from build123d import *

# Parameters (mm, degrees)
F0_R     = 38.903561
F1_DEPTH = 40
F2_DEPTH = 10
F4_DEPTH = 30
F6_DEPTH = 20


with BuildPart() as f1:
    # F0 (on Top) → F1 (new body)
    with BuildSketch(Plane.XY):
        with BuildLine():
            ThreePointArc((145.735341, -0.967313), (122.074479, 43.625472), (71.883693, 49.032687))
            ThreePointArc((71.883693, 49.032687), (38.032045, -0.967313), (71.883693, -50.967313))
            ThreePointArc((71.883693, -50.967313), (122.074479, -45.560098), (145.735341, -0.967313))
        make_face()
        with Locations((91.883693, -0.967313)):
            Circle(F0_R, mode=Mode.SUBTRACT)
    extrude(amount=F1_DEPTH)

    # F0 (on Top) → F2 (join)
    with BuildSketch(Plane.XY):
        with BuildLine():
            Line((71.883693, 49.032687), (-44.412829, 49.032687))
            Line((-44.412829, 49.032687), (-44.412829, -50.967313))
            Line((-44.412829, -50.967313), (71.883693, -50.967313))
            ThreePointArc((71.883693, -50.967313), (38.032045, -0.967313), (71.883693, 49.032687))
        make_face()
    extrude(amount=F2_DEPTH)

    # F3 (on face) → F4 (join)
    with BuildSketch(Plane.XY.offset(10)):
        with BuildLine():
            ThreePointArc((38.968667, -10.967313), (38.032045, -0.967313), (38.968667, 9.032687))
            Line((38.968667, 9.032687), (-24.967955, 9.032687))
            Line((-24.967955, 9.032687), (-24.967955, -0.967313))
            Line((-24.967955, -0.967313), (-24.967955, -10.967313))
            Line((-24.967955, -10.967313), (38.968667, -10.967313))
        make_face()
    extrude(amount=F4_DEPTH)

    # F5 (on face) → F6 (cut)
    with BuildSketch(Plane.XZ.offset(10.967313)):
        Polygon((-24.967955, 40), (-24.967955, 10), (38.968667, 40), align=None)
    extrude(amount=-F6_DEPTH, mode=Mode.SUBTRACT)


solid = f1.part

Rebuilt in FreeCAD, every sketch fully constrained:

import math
import FreeCAD as App
import Part
import Sketcher
from FreeCAD import Vector
Q = App.Units.Quantity


def add_polygon(sketch, points):
    """Adds a closed chain of lines whose ends are joined by coincident constraints."""
    first, n = sketch.GeometryCount, len(points)
    for a, b in zip(points, points[1:] + points[:1]):
        sketch.addGeometry(Part.LineSegment(App.Vector(*a, 0), App.Vector(*b, 0)), False)
    for i in range(n):
        sketch.addConstraint(Sketcher.Constraint("Coincident", first + i, 2, first + (i + 1) % n, 1))

doc = App.newDocument("Part")
params = doc.addObject("Spreadsheet::Sheet", "Params")
for row, (alias, value) in enumerate([
    ("sketch1_width", "20 mm"),
    ("sketch1_height", "49.999999 mm"),
    ("pad1_length", "40 mm"),
    ("sketch2_height", "100 mm"),
    ("pad2_length", "10 mm"),
    ("sketch3_height", "20 mm"),
    ("pad3_length", "30 mm"),
    ("sketch4_height", "30 mm"),
    ("pocket1_length", "20 mm"),
], start=1):
    params.set(f"A{row}", alias)
    params.set(f"B{row}", "=" + value)
    params.setAlias(f"B{row}", alias)

body = doc.addObject("PartDesign::Body", "Body")

# Sketch on XY plane
sketch1 = body.newObject("Sketcher::SketchObject", "Sketch")
sketch1.AttachmentSupport = (doc.getObject("XY_Plane"), [""])
sketch1.MapMode = "FlatFace"
sketch1.addGeometry(Part.ArcOfCircle(Part.Circle(Vector(92, -1, 0), Vector(0, 0, 1), 54), math.radians(0), math.radians(112)), False)
sketch1.addGeometry(Part.ArcOfCircle(Part.Circle(Vector(92, -1, 0), Vector(0, 0, 1), 54), math.radians(112), math.radians(248)), False)
sketch1.addGeometry(Part.ArcOfCircle(Part.Circle(Vector(92, -1, 0), Vector(0, 0, 1), 54), math.radians(-112), math.radians(0)), False)
sketch1.addGeometry(Part.Circle(Vector(92, -1, 0), Vector(0, 0, 1), 39), False)
sketch1.addConstraint(Sketcher.Constraint("Tangent", 0, 2, 1, 1))
sketch1.addConstraint(Sketcher.Constraint("Tangent", 1, 2, 2, 1))
sketch1.addConstraint(Sketcher.Constraint("Tangent", 2, 2, 0, 1))
sketch1.addConstraint(Sketcher.Constraint("Coincident", 3, 3, 0, 3))
sketch1.addConstraint(Sketcher.Constraint("Horizontal", 3, 3, 2, 2))
sketch1.addConstraint(Sketcher.Constraint("Vertical", 0, 2, 1, 2))
sketch1.addConstraint(Sketcher.Constraint("DistanceX", 0, 2, 0, 3, Q("20 mm")))
sketch1.addConstraint(Sketcher.Constraint("DistanceY", 0, 3, 0, 2, Q("49.999999 mm")))
sketch1.addConstraint(Sketcher.Constraint("Diameter", 3, Q("77.807122 mm")))
sketch1.addConstraint(Sketcher.Constraint("DistanceX", -1, 1, 2, 2, Q("145.735341 mm")))
sketch1.addConstraint(Sketcher.Constraint("DistanceY", 0, 3, -1, 1, Q("0.967312 mm")))
sketch1.setExpression("Constraints[6]", "Params.sketch1_width")
sketch1.setExpression("Constraints[7]", "Params.sketch1_height")
pad1 = body.newObject("PartDesign::Pad", "Pad")
pad1.Profile = sketch1
pad1.setExpression("Length", "Params.pad1_length")

# Sketch on XY plane
sketch2 = body.newObject("Sketcher::SketchObject", "Sketch001")
sketch2.AttachmentSupport = (doc.getObject("XY_Plane"), [""])
sketch2.MapMode = "FlatFace"
sketch2.addGeometry(Part.LineSegment(Vector(72, 49, 0), Vector(-44, 49, 0)), False)
sketch2.addGeometry(Part.LineSegment(Vector(-44, 49, 0), Vector(-44, -51, 0)), False)
sketch2.addGeometry(Part.LineSegment(Vector(-44, -51, 0), Vector(72, -51, 0)), False)
sketch2.addGeometry(Part.ArcOfCircle(Part.Circle(Vector(92, -1, 0), Vector(0, 0, 1), 54), math.radians(112), math.radians(248)), False)
sketch2.addConstraint(Sketcher.Constraint("Coincident", 0, 2, 1, 1))
sketch2.addConstraint(Sketcher.Constraint("Coincident", 1, 2, 2, 1))
sketch2.addConstraint(Sketcher.Constraint("Coincident", 2, 2, 3, 2))
sketch2.addConstraint(Sketcher.Constraint("Coincident", 3, 1, 0, 1))
sketch2.addConstraint(Sketcher.Constraint("Horizontal", 0))
sketch2.addConstraint(Sketcher.Constraint("Vertical", 1))
sketch2.addConstraint(Sketcher.Constraint("Horizontal", 2))
sketch2.addConstraint(Sketcher.Constraint("Vertical", 2, 2, 3, 1))
sketch2.addConstraint(Sketcher.Constraint("DistanceY", 1, 2, 1, 1, Q("100 mm")))
sketch2.addConstraint(Sketcher.Constraint("DistanceX", 2, 2, 3, 3, Q("20 mm")))
sketch2.addConstraint(Sketcher.Constraint("DistanceX", 0, 2, 0, 1, Q("116.296522 mm")))
sketch2.addConstraint(Sketcher.Constraint("DistanceX", 0, 2, -1, 1, Q("44.412829 mm")))
sketch2.addConstraint(Sketcher.Constraint("DistanceY", 3, 3, -1, 1, Q("0.967313 mm")))
sketch2.setExpression("Constraints[8]", "Params.sketch2_height")
pad2 = body.newObject("PartDesign::Pad", "Pad001")
pad2.Profile = sketch2
pad2.setExpression("Length", "Params.pad2_length")

# Sketch on XY plane
sketch3 = body.newObject("Sketcher::SketchObject", "Sketch002")
sketch3.AttachmentSupport = (doc.getObject("XY_Plane"), [""])
sketch3.MapMode = "FlatFace"
sketch3.AttachmentOffset = App.Placement(Vector(0, 0, 10), App.Rotation())
sketch3.addGeometry(Part.ArcOfCircle(Part.Circle(Vector(92, -1, 0), Vector(0, 0, 1), 54), math.radians(169), math.radians(191)), False)
sketch3.addGeometry(Part.LineSegment(Vector(39, 9, 0), Vector(-25, 9, 0)), False)
sketch3.addGeometry(Part.LineSegment(Vector(-25, 9, 0), Vector(-25, -11, 0)), False)
sketch3.addGeometry(Part.LineSegment(Vector(-25, -11, 0), Vector(39, -11, 0)), False)
sketch3.addConstraint(Sketcher.Constraint("Coincident", 0, 1, 1, 1))
sketch3.addConstraint(Sketcher.Constraint("Coincident", 1, 2, 2, 1))
sketch3.addConstraint(Sketcher.Constraint("Coincident", 2, 2, 3, 1))
sketch3.addConstraint(Sketcher.Constraint("Coincident", 3, 2, 0, 2))
sketch3.addConstraint(Sketcher.Constraint("Horizontal", 1))
sketch3.addConstraint(Sketcher.Constraint("Vertical", 2))
sketch3.addConstraint(Sketcher.Constraint("Horizontal", 3))
sketch3.addConstraint(Sketcher.Constraint("Vertical", 0, 1, 3, 2))
sketch3.addConstraint(Sketcher.Constraint("DistanceY", 2, 2, 2, 1, Q("20 mm")))
sketch3.addConstraint(Sketcher.Constraint("Radius", 0, Q("53.85164 mm")))
sketch3.addConstraint(Sketcher.Constraint("DistanceX", 1, 2, 1, 1, Q("63.936622 mm")))
sketch3.addConstraint(Sketcher.Constraint("DistanceX", -1, 1, 0, 3, Q("91.883685 mm")))
sketch3.addConstraint(Sketcher.Constraint("DistanceY", 0, 3, -1, 1, Q("0.967313 mm")))
sketch3.setExpression("Constraints[8]", "Params.sketch3_height")
pad3 = body.newObject("PartDesign::Pad", "Pad002")
pad3.Profile = sketch3
pad3.setExpression("Length", "Params.pad3_length")

# Sketch on XZ plane
sketch4 = body.newObject("Sketcher::SketchObject", "Sketch003")
sketch4.AttachmentSupport = (doc.getObject("XZ_Plane"), [""])
sketch4.MapMode = "FlatFace"
sketch4.AttachmentOffset = App.Placement(Vector(0, 0, 10.967313), App.Rotation())
add_polygon(sketch4, [(-25, 40), (-25, 10), (39, 40)])  # lines 0-2
sketch4.addConstraint(Sketcher.Constraint("Vertical", 0))
sketch4.addConstraint(Sketcher.Constraint("Horizontal", 2))
sketch4.addConstraint(Sketcher.Constraint("DistanceY", 0, 2, 0, 1, Q("30 mm")))
sketch4.addConstraint(Sketcher.Constraint("DistanceY", -1, 1, 0, 2, Q("10 mm")))
sketch4.addConstraint(Sketcher.Constraint("DistanceX", 2, 2, 2, 1, Q("63.936622 mm")))
sketch4.addConstraint(Sketcher.Constraint("DistanceX", 0, 2, -1, 1, Q("24.967955 mm")))
sketch4.setExpression("Constraints[5]", "Params.sketch4_height")
pocket1 = body.newObject("PartDesign::Pocket", "Pocket")
pocket1.Profile = sketch4
pocket1.setExpression("Length", "Params.pocket1_length")

doc.recompute()
